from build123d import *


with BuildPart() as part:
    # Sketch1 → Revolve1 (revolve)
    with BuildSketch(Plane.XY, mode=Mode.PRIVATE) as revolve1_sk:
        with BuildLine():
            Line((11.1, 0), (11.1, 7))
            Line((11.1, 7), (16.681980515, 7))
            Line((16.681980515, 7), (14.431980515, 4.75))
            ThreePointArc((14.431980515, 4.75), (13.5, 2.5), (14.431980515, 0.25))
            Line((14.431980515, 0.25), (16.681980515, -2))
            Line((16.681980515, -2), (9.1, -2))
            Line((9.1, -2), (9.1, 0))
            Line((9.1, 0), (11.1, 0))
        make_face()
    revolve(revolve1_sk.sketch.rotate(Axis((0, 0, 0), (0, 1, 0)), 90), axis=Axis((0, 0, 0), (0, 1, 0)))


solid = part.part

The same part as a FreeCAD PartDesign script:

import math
import FreeCAD as App
import Part
import Sketcher
from FreeCAD import Vector

doc = App.newDocument("Part")
params = doc.addObject("Spreadsheet::Sheet", "Params")
for row, (alias, value) in enumerate([
    ("sketch1_width", "2 mm"),
    ("sketch1_height", "7 mm"),
    ("revolution_angle", "360 deg"),
], start=1):
    params.set(f"A{row}", alias)
    params.set(f"B{row}", "=" + value)
    params.setAlias(f"B{row}", alias)

body = doc.addObject("PartDesign::Body", "Body")

# Sketch on XY plane
sketch1 = body.newObject("Sketcher::SketchObject", "Sketch")
sketch1.AttachmentSupport = (doc.getObject("XY_Plane"), [""])
sketch1.MapMode = "FlatFace"
sketch1.addGeometry([
    Part.LineSegment(Vector(11.1, 7, 0), Vector(11.1, 0, 0)),  # 0
    Part.LineSegment(Vector(11.1, 0, 0), Vector(9.1, 0, 0)),  # 1
    Part.LineSegment(Vector(9.1, 0, 0), Vector(9.1, -2, 0)),  # 2
    Part.LineSegment(Vector(9.1, -2, 0), Vector(16.7, -2, 0)),  # 3
    Part.LineSegment(Vector(16.7, -2, 0), Vector(14.4, 0.2, 0)),  # 4
    Part.ArcOfCircle(Part.Circle(Vector(16.7, 2.5, 0), Vector(0, 0, 1), 3.2), math.radians(135), math.radians(225)),  # 5
    Part.LineSegment(Vector(14.4, 4.8, 0), Vector(16.7, 7, 0)),  # 6
    Part.LineSegment(Vector(16.7, 7, 0), Vector(11.1, 7, 0)),  # 7
], False)
sketch1.addConstraint([
    Sketcher.Constraint("Coincident", 0, 2, 1, 1),
    Sketcher.Constraint("Coincident", 1, 2, 2, 1),
    Sketcher.Constraint("Coincident", 2, 2, 3, 1),
    Sketcher.Constraint("Coincident", 3, 2, 4, 1),
    Sketcher.Constraint("Tangent", 4, 2, 5, 2),
    Sketcher.Constraint("Tangent", 5, 1, 6, 1),
    Sketcher.Constraint("Coincident", 6, 2, 7, 1),
    Sketcher.Constraint("Coincident", 7, 2, 0, 1),
    Sketcher.Constraint("Vertical", 0),
    Sketcher.Constraint("Horizontal", 1),
    Sketcher.Constraint("Vertical", 2),
    Sketcher.Constraint("Horizontal", 3),
    Sketcher.Constraint("Horizontal", 7),
    Sketcher.Constraint("PointOnObject", 0, 2, -1),
    Sketcher.Constraint("Perpendicular", 4, 6),
    Sketcher.Constraint("Vertical", 5, 3, 3, 2),
    Sketcher.Constraint("Vertical", 4, 2, 5, 1),
    Sketcher.Constraint("Vertical", 3, 2, 6, 2),
    Sketcher.Constraint("Equal", 1, 2),
    Sketcher.Constraint("DistanceX", 1, 2, 1, 1, 2.0),
    Sketcher.Constraint("DistanceY", 0, 2, 0, 1, 7.0),
    Sketcher.Constraint("DistanceX", -1, 1, 0, 2, 11.1),
    Sketcher.Constraint("DistanceX", 3, 1, 3, 2, 7.581981),
])
sketch1.setExpression("Constraints[19]", "Params.sketch1_width")
sketch1.setExpression("Constraints[20]", "Params.sketch1_height")
revolution = body.newObject("PartDesign::Revolution", "Revolution")
revolution.Profile = sketch1
revolution.ReferenceAxis = (sketch1, ["V_Axis"])
revolution.setExpression("Angle", "Params.revolution_angle")

doc.recompute()
